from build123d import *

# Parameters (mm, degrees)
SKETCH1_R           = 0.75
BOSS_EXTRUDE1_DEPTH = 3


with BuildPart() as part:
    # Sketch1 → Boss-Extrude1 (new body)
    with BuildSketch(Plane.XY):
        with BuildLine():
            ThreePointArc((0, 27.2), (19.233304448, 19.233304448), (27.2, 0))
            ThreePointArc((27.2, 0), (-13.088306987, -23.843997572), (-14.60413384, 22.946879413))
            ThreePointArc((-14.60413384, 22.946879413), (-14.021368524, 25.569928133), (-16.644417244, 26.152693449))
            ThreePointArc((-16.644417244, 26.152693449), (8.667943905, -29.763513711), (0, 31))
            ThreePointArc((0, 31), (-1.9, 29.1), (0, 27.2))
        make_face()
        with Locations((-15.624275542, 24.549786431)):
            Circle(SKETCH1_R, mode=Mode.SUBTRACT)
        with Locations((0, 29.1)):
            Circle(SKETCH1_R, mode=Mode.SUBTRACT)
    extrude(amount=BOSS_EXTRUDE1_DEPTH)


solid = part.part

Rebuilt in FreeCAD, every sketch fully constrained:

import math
import FreeCAD as App
import Part
import Sketcher
from FreeCAD import Vector
Q = App.Units.Quantity

doc = App.newDocument("Part")
body = doc.addObject("PartDesign::Body", "Body")

sketch1 = doc.addObject("Sketcher::SketchObject", "Sketch")
body.addObject(sketch1)
sketch1.AttachmentSupport = (doc.XY_Plane, [""])
sketch1.MapMode = "FlatFace"
sketch1.addGeometry([
    Part.ArcOfCircle(Part.Circle(Vector(0, 0, 0), Vector(0, 0, 1), 27.2), math.radians(0), math.radians(90)),
    Part.ArcOfCircle(Part.Circle(Vector(0, 0, 0), Vector(0, 0, 1), 27.2), math.radians(122), math.radians(360)),
    Part.ArcOfCircle(Part.Circle(Vector(-15.6, 24.5, 0), Vector(0, 0, 1), 1.9), math.radians(-58), math.radians(122)),
    Part.ArcOfCircle(Part.Circle(Vector(0, 0, 0), Vector(0, 0, 1), 31), math.radians(122), math.radians(450)),
    Part.ArcOfCircle(Part.Circle(Vector(0, 29.1, 0), Vector(0, 0, 1), 1.9), math.radians(90), math.radians(270)),
    Part.Circle(Vector(-15.6, 24.5, 0), Vector(0, 0, 1), 0.8),
    Part.Circle(Vector(0, 29.1, 0), Vector(0, 0, 1), 0.8),
], False)
sketch1.addConstraint([
    Sketcher.Constraint("Tangent", 0, 1, 1, 2),
    Sketcher.Constraint("Tangent", 1, 1, 2, 1),
    Sketcher.Constraint("Tangent", 2, 2, 3, 1),
    Sketcher.Constraint("Tangent", 3, 2, 4, 1),
    Sketcher.Constraint("Tangent", 4, 2, 0, 2),
    Sketcher.Constraint("Coincident", 0, 3, -1, 1),
    Sketcher.Constraint("Coincident", 3, 3, -1, 1),
    Sketcher.Constraint("Coincident", 5, 3, 2, 3),
    Sketcher.Constraint("Coincident", 6, 3, 4, 3),
    Sketcher.Constraint("Equal", 0, 1),
    Sketcher.Constraint("Equal", 5, 6),
    Sketcher.Constraint("PointOnObject", 4, 3, -2),
    Sketcher.Constraint("PointOnObject", 0, 1, -1),
    Sketcher.Constraint("Radius", 3, Q("31 mm")),
    Sketcher.Constraint("Diameter", 5, Q("1.5 mm")),
    Sketcher.Constraint("Radius", 0, Q("27.2 mm")),
    Sketcher.Constraint("DistanceY", -1, 1, 1, 1, Q("22.946879 mm")),
])
pad1 = doc.addObject("PartDesign::Pad", "Pad")
body.addObject(pad1)
pad1.Profile = sketch1
pad1.Length = 3

doc.recompute()
